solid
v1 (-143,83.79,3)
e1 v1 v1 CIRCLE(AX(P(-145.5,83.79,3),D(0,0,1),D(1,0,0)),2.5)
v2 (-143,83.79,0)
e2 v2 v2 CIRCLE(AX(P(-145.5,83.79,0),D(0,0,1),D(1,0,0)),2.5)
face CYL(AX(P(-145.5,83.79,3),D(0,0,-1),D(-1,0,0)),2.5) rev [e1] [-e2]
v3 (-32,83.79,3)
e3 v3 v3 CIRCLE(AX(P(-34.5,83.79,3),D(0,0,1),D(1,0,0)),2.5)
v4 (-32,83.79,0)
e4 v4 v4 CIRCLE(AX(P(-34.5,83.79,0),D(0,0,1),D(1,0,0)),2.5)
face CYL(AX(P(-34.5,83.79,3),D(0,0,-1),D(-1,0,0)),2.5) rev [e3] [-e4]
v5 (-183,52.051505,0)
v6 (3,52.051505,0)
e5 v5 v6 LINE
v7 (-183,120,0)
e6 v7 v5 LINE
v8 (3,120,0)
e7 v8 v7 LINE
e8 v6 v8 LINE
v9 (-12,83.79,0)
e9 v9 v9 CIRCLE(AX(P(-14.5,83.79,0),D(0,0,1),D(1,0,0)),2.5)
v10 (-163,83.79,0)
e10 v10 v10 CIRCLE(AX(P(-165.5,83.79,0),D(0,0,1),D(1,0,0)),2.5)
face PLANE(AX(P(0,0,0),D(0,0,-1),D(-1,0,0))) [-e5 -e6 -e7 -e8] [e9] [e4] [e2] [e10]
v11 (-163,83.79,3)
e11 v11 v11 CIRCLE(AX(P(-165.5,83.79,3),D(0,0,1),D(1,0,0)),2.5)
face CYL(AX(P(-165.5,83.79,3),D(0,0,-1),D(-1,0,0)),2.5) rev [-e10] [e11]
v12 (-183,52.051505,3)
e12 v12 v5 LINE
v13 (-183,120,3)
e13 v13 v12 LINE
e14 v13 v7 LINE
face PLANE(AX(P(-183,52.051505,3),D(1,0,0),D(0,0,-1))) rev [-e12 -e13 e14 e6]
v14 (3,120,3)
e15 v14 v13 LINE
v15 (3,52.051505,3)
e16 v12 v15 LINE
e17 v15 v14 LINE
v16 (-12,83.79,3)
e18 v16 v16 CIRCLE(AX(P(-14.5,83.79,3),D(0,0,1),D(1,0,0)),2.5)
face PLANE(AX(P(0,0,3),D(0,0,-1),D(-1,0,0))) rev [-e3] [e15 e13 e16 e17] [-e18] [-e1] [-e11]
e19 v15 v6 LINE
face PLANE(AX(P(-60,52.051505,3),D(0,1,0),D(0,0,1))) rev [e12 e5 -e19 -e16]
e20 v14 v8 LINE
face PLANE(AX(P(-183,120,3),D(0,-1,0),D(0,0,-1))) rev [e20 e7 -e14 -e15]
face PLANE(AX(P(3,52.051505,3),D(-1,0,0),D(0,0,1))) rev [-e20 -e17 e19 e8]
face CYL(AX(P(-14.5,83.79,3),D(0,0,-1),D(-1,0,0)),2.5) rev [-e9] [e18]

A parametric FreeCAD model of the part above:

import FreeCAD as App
import Part
import Sketcher
Q = App.Units.Quantity

doc = App.newDocument("Part")
body = doc.addObject("PartDesign::Body", "Body")

sketch1 = body.newObject("Sketcher::SketchObject", "Sketch")
sketch1.AttachmentSupport = (doc.getObject("XY_Plane"), [""])
sketch1.MapMode = "FlatFace"
sketch1.addGeometry([
    Part.LineSegment(App.Vector(-183, 52.1, 0), App.Vector(3, 52.1, 0)),
    Part.LineSegment(App.Vector(3, 52.1, 0), App.Vector(3, 120, 0)),
    Part.LineSegment(App.Vector(3, 120, 0), App.Vector(-183, 120, 0)),
    Part.LineSegment(App.Vector(-183, 120, 0), App.Vector(-183, 52.1, 0)),
    Part.Circle(App.Vector(-165.5, 83.8, 0), App.Vector(0, 0, 1), 2.5),
    Part.Circle(App.Vector(-145.5, 83.8, 0), App.Vector(0, 0, 1), 2.5),
    Part.Circle(App.Vector(-34.5, 83.8, 0), App.Vector(0, 0, 1), 2.5),
    Part.Circle(App.Vector(-14.5, 83.8, 0), App.Vector(0, 0, 1), 2.5),
], False)
sketch1.addConstraint([
    Sketcher.Constraint("Coincident", 0, 2, 1, 1),
    Sketcher.Constraint("Coincident", 1, 2, 2, 1),
    Sketcher.Constraint("Coincident", 2, 2, 3, 1),
    Sketcher.Constraint("Coincident", 3, 2, 0, 1),
    Sketcher.Constraint("Horizontal", 0),
    Sketcher.Constraint("Vertical", 1),
    Sketcher.Constraint("Horizontal", 2),
    Sketcher.Constraint("Vertical", 3),
    Sketcher.Constraint("Equal", 4, 5),
    Sketcher.Constraint("Equal", 5, 6),
    Sketcher.Constraint("Equal", 6, 7),
    Sketcher.Constraint("Horizontal", 4, 3, 5, 3),
    Sketcher.Constraint("Horizontal", 5, 3, 6, 3),
    Sketcher.Constraint("Horizontal", 6, 3, 7, 3),
    Sketcher.Constraint("Diameter", 4, Q("5 mm")),
    Sketcher.Constraint("DistanceX", 0, 1, 0, 2, Q("186 mm")),
    Sketcher.Constraint("DistanceX", -1, 1, 0, 2, Q("3 mm")),
    Sketcher.Constraint("DistanceY", -1, 1, 1, 2, Q("120 mm")),
    Sketcher.Constraint("DistanceX", 4, 3, 5, 3, Q("20 mm")),
    Sketcher.Constraint("DistanceX", 5, 3, 6, 3, Q("111 mm")),
    Sketcher.Constraint("DistanceX", 6, 3, 7, 3, Q("20 mm")),
    Sketcher.Constraint("DistanceX", 4, 3, -1, 1, Q("165.5 mm")),
    Sketcher.Constraint("DistanceY", -1, 1, 4, 3, Q("83.79 mm")),
    Sketcher.Constraint("DistanceY", 1, 1, 1, 2, Q("67.948495 mm")),
])
pad1 = body.newObject("PartDesign::Pad", "Pad")
pad1.Profile = sketch1
pad1.Length = 3

doc.recompute()
